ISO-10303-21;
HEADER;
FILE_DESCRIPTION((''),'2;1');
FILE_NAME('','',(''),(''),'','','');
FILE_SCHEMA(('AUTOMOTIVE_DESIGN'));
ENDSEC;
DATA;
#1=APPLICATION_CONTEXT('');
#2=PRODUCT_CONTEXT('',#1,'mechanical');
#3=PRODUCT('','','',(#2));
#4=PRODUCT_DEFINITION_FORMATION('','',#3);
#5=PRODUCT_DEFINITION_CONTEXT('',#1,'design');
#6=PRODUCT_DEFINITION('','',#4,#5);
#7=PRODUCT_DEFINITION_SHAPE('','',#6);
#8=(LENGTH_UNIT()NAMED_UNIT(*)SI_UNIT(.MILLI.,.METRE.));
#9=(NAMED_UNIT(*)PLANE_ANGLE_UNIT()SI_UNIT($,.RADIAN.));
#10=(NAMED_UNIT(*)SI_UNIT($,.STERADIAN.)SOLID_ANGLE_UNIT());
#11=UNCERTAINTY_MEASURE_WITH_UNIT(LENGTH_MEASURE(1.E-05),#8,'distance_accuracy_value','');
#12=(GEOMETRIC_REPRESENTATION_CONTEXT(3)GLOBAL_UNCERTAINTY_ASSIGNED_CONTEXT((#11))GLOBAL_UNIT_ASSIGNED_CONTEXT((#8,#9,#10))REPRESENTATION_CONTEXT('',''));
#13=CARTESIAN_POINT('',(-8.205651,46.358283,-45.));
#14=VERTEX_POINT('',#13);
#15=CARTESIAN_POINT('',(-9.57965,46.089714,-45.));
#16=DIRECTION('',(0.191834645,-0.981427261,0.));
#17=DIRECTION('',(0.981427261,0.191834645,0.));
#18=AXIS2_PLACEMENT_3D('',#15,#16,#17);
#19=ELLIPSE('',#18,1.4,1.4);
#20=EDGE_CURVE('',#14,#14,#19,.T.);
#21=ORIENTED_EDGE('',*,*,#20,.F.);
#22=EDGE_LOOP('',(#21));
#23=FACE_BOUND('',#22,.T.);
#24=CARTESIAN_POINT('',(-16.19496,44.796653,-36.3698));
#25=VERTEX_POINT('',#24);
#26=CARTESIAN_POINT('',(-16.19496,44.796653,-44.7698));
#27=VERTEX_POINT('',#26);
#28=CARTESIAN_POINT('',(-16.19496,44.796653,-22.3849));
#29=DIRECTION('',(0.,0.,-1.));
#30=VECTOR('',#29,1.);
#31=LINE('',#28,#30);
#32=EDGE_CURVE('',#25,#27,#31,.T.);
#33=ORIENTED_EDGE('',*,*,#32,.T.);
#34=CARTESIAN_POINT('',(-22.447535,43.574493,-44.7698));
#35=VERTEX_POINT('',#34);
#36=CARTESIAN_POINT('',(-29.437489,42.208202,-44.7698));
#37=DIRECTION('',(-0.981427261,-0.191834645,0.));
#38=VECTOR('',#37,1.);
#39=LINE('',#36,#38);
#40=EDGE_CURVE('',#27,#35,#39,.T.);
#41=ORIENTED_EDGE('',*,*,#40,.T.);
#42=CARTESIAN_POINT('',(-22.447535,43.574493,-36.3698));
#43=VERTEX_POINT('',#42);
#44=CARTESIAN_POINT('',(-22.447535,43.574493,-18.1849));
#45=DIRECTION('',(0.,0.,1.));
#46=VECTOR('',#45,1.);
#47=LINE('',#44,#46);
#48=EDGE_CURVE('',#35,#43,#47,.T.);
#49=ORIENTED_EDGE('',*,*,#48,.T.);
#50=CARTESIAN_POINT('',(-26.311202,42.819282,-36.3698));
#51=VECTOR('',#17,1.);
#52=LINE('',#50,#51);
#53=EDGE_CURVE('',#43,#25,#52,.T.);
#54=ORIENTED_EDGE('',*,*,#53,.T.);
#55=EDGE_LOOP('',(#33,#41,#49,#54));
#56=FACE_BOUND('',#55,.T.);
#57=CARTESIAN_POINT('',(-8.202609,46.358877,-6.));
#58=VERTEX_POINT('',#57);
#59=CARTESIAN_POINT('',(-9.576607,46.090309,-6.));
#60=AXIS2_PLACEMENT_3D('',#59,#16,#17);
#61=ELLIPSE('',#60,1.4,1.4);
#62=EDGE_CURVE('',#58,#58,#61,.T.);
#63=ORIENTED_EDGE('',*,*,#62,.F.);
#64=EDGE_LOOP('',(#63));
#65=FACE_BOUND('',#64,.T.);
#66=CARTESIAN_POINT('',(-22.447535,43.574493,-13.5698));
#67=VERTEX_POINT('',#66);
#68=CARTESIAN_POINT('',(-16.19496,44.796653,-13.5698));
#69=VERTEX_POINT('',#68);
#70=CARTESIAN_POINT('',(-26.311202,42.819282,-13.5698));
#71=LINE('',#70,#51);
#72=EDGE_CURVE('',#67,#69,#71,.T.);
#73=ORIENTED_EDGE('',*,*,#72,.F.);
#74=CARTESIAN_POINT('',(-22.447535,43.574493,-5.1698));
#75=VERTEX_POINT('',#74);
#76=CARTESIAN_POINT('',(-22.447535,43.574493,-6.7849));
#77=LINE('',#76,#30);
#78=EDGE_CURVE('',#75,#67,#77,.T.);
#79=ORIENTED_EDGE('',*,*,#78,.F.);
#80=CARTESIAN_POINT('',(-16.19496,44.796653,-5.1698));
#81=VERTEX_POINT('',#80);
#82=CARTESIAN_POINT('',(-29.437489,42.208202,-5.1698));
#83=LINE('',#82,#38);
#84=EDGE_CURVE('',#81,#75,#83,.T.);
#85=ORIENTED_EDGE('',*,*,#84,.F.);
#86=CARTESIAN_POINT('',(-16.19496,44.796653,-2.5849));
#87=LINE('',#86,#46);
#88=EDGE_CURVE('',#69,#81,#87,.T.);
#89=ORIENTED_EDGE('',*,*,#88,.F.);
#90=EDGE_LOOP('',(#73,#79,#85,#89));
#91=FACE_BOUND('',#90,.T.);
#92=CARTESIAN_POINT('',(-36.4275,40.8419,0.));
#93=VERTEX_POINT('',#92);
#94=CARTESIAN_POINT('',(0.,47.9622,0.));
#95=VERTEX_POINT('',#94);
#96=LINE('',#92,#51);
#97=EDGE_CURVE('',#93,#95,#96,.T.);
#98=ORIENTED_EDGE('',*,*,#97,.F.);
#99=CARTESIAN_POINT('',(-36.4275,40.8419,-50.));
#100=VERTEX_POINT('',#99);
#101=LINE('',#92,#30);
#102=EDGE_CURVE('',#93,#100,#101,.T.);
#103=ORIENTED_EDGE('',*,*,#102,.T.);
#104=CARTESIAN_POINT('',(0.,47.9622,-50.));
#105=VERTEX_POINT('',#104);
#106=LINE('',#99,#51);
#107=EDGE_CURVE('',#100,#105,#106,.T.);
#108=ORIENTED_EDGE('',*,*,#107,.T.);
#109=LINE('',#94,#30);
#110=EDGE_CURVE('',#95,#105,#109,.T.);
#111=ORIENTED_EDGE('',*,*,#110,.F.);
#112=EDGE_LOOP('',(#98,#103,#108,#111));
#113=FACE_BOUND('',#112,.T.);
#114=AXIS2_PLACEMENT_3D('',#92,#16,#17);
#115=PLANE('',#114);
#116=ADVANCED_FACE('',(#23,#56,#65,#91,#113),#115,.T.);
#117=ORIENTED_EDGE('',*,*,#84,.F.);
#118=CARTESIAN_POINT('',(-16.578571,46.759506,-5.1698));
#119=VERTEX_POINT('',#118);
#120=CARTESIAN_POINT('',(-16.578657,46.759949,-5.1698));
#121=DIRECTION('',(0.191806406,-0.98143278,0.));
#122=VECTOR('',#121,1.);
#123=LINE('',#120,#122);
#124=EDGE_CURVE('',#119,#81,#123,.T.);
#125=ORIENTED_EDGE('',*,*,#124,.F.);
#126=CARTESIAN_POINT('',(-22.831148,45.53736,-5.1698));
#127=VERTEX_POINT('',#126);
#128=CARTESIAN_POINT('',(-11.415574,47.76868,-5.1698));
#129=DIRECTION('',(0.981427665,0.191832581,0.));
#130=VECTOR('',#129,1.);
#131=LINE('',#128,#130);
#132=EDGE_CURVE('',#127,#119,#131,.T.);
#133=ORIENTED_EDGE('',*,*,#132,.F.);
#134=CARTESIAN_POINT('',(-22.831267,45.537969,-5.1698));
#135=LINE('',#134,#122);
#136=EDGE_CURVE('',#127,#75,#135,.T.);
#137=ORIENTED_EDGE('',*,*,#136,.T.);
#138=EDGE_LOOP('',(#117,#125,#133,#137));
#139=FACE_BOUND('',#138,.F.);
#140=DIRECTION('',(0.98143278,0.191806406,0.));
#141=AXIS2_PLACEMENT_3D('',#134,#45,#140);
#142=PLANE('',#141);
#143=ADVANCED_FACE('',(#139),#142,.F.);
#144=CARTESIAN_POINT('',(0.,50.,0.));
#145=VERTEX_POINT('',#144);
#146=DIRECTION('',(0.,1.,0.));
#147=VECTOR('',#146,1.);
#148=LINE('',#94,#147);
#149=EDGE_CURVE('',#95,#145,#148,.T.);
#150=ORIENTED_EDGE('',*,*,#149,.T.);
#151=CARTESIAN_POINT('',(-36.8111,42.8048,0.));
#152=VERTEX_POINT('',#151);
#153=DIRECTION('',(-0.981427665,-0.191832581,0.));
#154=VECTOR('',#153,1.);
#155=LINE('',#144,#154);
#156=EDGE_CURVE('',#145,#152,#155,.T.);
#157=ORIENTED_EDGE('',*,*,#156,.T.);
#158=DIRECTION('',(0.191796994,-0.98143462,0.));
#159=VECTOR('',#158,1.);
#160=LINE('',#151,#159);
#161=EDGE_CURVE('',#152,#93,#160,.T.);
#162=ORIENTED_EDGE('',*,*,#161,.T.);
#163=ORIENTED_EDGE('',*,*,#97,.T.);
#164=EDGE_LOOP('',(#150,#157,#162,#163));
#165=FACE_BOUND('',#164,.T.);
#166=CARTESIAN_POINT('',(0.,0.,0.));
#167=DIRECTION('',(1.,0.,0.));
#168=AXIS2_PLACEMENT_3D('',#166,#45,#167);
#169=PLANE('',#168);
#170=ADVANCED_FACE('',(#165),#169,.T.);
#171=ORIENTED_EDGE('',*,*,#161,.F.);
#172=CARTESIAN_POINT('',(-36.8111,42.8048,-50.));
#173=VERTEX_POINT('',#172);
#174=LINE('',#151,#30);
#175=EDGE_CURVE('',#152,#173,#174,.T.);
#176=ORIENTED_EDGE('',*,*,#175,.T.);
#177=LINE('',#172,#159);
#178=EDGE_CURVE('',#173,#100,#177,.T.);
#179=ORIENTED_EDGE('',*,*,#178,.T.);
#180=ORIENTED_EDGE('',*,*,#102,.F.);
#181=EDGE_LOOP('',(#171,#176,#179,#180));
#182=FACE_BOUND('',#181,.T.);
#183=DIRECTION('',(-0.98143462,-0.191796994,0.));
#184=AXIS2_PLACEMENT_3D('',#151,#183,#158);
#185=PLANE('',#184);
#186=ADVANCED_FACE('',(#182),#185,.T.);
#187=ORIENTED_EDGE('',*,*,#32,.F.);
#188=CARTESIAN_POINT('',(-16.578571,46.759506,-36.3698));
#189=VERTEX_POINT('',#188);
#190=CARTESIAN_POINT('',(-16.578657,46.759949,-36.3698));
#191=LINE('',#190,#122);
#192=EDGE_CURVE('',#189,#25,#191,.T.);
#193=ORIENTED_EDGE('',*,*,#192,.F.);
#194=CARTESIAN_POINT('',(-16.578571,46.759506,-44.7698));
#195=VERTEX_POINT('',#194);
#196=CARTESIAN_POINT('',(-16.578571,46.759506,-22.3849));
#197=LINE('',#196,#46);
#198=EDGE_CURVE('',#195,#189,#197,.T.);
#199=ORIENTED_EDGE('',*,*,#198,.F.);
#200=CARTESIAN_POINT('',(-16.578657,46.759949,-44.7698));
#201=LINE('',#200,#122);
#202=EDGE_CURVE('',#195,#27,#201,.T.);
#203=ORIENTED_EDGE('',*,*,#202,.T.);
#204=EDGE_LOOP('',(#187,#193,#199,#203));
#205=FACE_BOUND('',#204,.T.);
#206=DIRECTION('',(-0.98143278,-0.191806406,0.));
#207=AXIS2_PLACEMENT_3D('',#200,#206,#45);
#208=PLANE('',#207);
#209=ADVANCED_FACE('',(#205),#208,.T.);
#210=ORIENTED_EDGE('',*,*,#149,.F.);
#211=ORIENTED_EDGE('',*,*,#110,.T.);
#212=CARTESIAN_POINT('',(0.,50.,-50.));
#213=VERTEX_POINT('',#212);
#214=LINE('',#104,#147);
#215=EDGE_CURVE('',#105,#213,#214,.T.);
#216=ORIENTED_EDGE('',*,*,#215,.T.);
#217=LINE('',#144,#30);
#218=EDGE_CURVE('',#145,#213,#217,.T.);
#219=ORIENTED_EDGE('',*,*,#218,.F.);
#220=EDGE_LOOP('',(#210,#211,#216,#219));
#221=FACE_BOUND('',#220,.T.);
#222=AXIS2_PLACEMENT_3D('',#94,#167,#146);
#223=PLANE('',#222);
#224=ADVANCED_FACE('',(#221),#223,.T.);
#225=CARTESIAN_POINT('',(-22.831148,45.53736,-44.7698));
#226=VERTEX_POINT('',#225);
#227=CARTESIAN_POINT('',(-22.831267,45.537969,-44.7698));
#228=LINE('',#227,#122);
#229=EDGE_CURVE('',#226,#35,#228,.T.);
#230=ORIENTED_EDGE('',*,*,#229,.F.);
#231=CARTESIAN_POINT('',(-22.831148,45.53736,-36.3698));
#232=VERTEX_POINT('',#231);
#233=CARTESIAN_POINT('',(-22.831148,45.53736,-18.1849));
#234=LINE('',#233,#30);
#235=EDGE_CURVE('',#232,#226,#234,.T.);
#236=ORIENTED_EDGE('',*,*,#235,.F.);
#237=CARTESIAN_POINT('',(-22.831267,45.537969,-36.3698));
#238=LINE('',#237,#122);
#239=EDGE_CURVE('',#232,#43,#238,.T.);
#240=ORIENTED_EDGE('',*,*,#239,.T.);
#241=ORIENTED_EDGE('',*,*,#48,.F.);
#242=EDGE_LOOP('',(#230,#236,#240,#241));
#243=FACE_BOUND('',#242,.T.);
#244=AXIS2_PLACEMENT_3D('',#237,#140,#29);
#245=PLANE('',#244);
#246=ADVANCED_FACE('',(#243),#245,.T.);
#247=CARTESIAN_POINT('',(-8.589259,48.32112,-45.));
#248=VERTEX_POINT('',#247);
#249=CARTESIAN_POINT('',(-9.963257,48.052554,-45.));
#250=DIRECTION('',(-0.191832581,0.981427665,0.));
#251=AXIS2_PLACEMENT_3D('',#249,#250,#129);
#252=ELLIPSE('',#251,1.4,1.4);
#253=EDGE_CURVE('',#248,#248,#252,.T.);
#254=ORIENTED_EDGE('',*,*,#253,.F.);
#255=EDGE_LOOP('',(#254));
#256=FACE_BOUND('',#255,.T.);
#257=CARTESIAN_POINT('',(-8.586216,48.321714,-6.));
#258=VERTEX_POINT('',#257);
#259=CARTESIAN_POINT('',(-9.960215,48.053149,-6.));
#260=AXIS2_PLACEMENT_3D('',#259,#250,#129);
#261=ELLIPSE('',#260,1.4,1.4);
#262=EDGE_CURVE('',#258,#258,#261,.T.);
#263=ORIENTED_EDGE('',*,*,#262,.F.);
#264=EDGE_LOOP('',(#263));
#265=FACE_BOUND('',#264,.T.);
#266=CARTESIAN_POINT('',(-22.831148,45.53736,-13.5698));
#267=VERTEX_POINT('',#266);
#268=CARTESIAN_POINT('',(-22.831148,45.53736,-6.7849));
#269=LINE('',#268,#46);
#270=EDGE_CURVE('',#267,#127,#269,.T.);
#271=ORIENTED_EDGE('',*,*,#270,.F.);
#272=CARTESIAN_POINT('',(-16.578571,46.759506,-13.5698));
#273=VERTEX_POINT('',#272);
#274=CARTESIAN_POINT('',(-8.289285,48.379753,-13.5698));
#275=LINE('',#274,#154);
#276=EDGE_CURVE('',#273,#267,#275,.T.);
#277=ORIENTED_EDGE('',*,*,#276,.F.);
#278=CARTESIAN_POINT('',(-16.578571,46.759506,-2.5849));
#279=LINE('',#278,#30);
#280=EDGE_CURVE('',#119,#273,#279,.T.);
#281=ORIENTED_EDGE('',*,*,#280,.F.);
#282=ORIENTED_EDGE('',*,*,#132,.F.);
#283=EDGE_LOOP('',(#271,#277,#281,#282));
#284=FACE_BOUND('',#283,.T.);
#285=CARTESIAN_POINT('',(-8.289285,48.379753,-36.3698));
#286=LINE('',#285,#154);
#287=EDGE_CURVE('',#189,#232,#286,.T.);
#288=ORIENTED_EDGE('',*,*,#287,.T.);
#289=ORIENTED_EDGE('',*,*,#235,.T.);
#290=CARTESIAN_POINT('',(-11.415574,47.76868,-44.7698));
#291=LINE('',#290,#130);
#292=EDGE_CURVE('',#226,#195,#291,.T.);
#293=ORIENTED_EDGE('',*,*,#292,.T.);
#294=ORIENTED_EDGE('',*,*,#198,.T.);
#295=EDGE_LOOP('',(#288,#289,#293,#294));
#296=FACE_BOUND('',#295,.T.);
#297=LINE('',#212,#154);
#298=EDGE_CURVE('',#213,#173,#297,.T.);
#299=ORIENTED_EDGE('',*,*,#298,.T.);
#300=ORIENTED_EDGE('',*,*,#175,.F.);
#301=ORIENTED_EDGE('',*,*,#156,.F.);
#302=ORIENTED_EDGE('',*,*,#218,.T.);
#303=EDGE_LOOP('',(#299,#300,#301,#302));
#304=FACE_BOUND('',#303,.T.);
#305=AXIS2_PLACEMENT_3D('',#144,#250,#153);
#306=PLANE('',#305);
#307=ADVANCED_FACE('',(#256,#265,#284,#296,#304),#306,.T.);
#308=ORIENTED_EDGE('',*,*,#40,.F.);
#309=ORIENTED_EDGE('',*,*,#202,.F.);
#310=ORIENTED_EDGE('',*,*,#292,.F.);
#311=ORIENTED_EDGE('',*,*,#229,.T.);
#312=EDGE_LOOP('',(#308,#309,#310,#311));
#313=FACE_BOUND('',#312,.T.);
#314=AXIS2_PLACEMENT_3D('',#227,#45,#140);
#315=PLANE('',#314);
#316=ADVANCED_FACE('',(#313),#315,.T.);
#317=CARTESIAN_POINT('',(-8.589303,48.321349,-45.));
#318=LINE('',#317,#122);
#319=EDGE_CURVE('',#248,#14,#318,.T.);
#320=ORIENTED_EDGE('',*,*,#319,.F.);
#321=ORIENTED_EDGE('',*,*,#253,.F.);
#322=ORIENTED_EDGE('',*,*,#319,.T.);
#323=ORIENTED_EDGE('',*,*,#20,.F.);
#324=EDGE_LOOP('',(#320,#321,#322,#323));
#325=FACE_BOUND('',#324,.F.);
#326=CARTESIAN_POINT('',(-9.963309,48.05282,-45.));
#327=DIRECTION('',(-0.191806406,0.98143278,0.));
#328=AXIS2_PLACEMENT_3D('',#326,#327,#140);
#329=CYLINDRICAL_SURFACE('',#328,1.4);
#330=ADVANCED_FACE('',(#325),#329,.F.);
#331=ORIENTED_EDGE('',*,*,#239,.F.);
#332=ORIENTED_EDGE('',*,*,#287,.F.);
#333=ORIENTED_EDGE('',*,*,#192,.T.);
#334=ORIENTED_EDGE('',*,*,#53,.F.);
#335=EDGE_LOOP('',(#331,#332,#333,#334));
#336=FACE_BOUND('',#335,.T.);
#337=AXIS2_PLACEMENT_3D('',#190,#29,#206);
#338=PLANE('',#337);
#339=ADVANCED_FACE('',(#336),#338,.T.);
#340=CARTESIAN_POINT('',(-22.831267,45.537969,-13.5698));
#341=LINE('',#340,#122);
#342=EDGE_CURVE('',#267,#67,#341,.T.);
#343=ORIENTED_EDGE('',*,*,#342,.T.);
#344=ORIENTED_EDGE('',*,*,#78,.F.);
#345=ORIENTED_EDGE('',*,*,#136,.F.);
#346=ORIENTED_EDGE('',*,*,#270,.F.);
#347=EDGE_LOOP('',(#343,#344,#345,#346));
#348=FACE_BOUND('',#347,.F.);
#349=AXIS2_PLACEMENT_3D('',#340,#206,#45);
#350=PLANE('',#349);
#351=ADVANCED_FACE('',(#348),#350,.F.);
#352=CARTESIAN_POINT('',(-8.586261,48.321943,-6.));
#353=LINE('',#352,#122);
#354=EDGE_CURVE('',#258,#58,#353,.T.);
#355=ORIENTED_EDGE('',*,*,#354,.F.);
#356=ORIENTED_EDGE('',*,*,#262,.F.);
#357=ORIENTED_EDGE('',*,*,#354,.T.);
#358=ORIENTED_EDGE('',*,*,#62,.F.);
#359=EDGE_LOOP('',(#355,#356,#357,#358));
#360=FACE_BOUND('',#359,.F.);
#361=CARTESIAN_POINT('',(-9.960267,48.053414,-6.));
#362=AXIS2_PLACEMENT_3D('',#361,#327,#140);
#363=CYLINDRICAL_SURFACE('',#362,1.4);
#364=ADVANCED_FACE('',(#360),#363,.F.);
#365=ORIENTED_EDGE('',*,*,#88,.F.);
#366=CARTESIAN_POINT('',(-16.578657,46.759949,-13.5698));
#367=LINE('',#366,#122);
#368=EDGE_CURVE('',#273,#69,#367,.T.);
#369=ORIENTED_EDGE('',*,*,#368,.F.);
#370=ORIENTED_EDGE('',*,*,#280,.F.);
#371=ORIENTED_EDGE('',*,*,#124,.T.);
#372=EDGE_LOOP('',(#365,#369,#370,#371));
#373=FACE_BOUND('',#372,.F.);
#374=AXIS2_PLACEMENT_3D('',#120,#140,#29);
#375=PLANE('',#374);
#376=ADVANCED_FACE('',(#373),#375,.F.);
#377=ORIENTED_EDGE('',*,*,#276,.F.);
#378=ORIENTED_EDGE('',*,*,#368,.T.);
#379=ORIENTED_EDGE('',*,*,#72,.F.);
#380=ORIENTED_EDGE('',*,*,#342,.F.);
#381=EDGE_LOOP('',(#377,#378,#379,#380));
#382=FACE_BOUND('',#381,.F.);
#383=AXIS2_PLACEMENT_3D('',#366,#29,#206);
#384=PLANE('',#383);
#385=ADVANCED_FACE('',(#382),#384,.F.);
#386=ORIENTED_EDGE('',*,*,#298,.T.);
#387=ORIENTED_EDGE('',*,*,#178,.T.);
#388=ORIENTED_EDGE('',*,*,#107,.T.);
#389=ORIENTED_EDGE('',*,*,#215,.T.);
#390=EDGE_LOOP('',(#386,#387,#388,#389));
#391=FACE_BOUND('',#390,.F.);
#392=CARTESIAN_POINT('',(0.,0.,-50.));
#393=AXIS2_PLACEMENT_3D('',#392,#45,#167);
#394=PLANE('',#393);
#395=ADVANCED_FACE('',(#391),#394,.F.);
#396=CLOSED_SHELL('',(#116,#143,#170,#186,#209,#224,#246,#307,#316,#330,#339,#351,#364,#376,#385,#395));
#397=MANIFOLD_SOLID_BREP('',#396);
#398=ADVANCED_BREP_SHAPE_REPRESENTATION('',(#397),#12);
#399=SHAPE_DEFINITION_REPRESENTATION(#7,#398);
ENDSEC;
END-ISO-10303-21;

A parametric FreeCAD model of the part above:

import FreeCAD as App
import Part
import Sketcher

V = App.Vector
Q = App.Units.Quantity

doc = App.newDocument("Part")
params = doc.addObject("Spreadsheet::Sheet", "Params")
for row, (alias, value) in enumerate([
    ("sketch1_length", "2 mm"),
    ("pad1_length", "50 mm"),
    ("sketch2_diameter", "2.8 mm"),
    ("sketch2_height", "8.4 mm"),
], start=1):
    params.set(f"A{row}", alias)
    params.set(f"B{row}", "=" + value)
    params.setAlias(f"B{row}", alias)

body = doc.addObject("PartDesign::Body", "Body")

# Sketch on XY plane
sketch1 = body.newObject("Sketcher::SketchObject", "Sketch")
sketch1.AttachmentSupport = (doc.getObject("XY_Plane"), [""])
sketch1.MapMode = "FlatFace"
sketch1.addGeometry([
    Part.LineSegment(V(0, 48, 0), V(0, 50, 0)),
    Part.LineSegment(V(0, 50, 0), V(-36.8, 42.8, 0)),
    Part.LineSegment(V(-36.8, 42.8, 0), V(-36.4, 40.8, 0)),
    Part.LineSegment(V(-36.4, 40.8, 0), V(0, 48, 0)),
], False)
sketch1.addConstraint([
    Sketcher.Constraint("Coincident", 0, 2, 1, 1),
    Sketcher.Constraint("Coincident", 1, 2, 2, 1),
    Sketcher.Constraint("Coincident", 2, 2, 3, 1),
    Sketcher.Constraint("Coincident", 3, 2, 0, 1),
    Sketcher.Constraint("Vertical", 0),
    Sketcher.Constraint("PointOnObject", 0, 2, -2),
    Sketcher.Constraint("Perpendicular", 1, 2),
    Sketcher.Constraint("Perpendicular", 2, 3),
    Sketcher.Constraint("Distance", 2, Q("2 mm")),
    Sketcher.Constraint("DistanceY", -1, 1, 0, 2, Q("50 mm")),
    Sketcher.Constraint("Angle", 1, Q("-168.9402 deg")),
    Sketcher.Constraint("DistanceX", 1, 2, -1, 1, Q("36.811 mm")),
])
sketch1.setExpression("Constraints[8]", "Params.sketch1_length")
pad1 = body.newObject("PartDesign::Pad", "Pad")
pad1.Profile = sketch1
pad1.setExpression("Length", "Params.pad1_length")
pad1.Reversed = True

# Sketch on an angled plane
sketch2 = body.newObject("Sketcher::SketchObject", "Sketch001")
sketch2.Placement = App.Placement(V(0, 50, 0), App.Rotation(V(0.98143278, 0.191806406, 0), V(0, 0, -0.999999999), V(-0.191806406, 0.98143278, 0), "ZXY"))
sketch2.addGeometry([
    Part.LineSegment(V(-23.3, 5.2, 0), V(-16.9, 5.2, 0)),  # 0
    Part.LineSegment(V(-16.9, 5.2, 0), V(-16.9, 13.6, 0)),  # 1
    Part.LineSegment(V(-16.9, 13.6, 0), V(-23.3, 13.6, 0)),  # 2
    Part.LineSegment(V(-23.3, 13.6, 0), V(-23.3, 5.2, 0)),  # 3
    Part.LineSegment(V(-23.3, 36.4, 0), V(-16.9, 36.4, 0)),  # 4
    Part.LineSegment(V(-16.9, 36.4, 0), V(-16.9, 44.8, 0)),  # 5
    Part.LineSegment(V(-16.9, 44.8, 0), V(-23.3, 44.8, 0)),  # 6
    Part.LineSegment(V(-23.3, 44.8, 0), V(-23.3, 36.4, 0)),  # 7
    Part.Circle(V(-10.1, 6, 0), V(0, 0, 1), 1.4),  # 8
    Part.Circle(V(-10.2, 45, 0), V(0, 0, 1), 1.4),  # 9
], False)
sketch2.addConstraint([
    Sketcher.Constraint("Coincident", 0, 2, 1, 1),
    Sketcher.Constraint("Coincident", 1, 2, 2, 1),
    Sketcher.Constraint("Coincident", 2, 2, 3, 1),
    Sketcher.Constraint("Coincident", 3, 2, 0, 1),
    Sketcher.Constraint("Coincident", 4, 2, 5, 1),
    Sketcher.Constraint("Coincident", 5, 2, 6, 1),
    Sketcher.Constraint("Coincident", 6, 2, 7, 1),
    Sketcher.Constraint("Coincident", 7, 2, 4, 1),
    Sketcher.Constraint("Horizontal", 0),
    Sketcher.Constraint("Vertical", 1),
    Sketcher.Constraint("Horizontal", 2),
    Sketcher.Constraint("Vertical", 3),
    Sketcher.Constraint("Horizontal", 4),
    Sketcher.Constraint("Vertical", 5),
    Sketcher.Constraint("Horizontal", 6),
    Sketcher.Constraint("Vertical", 7),
    Sketcher.Constraint("Equal", 8, 9),
    Sketcher.Constraint("Vertical", 1, 2, 4, 2),
    Sketcher.Constraint("Vertical", 3, 2, 6, 2),
    Sketcher.Constraint("Equal", 3, 5),
    Sketcher.Constraint("Diameter", 8, Q("2.8 mm")),
    Sketcher.Constraint("DistanceY", 1, 1, 1, 2, Q("8.4 mm")),
    Sketcher.Constraint("DistanceY", -1, 1, 8, 3, Q("6 mm")),
    Sketcher.Constraint("DistanceY", -1, 1, 9, 3, Q("45 mm")),
    Sketcher.Constraint("DistanceY", 1, 2, 4, 2, Q("22.8 mm")),
    Sketcher.Constraint("DistanceX", 0, 1, 0, 2, Q("6.371 mm")),
    Sketcher.Constraint("DistanceX", 9, 3, 8, 3, Q("0.003 mm")),
    Sketcher.Constraint("DistanceX", 8, 3, -1, 1, Q("10.1487 mm")),
    Sketcher.Constraint("DistanceX", 0, 2, -1, 1, Q("16.8923 mm")),
    Sketcher.Constraint("DistanceY", -1, 1, 0, 2, Q("5.1698 mm")),
])
sketch2.setExpression("Constraints[20]", "Params.sketch2_diameter")
sketch2.setExpression("Constraints[21]", "Params.sketch2_height")
pocket1 = body.newObject("PartDesign::Pocket", "Pocket")
pocket1.Profile = sketch2
pocket1.Type = "ThroughAll"

doc.recompute()
